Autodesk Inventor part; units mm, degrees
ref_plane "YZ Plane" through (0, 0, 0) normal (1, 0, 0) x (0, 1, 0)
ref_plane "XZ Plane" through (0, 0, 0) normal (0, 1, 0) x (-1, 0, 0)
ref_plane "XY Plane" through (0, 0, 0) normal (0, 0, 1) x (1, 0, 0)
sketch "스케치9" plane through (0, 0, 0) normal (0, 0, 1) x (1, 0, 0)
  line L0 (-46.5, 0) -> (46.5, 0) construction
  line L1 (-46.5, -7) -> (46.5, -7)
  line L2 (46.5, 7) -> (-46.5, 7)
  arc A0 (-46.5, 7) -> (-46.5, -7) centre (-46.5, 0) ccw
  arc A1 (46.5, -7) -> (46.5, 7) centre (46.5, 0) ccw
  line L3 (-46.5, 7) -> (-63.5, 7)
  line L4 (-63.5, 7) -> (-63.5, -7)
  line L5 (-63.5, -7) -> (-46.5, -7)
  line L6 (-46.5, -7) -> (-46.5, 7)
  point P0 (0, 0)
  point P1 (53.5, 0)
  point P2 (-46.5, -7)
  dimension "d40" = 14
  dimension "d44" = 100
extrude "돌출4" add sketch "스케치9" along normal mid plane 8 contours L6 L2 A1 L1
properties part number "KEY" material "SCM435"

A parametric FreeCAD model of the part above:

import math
import FreeCAD as App
import Part
import Sketcher
from FreeCAD import Vector
Q = App.Units.Quantity

doc = App.newDocument("Part")
params = doc.addObject("Spreadsheet::Sheet", "Params")
for row, (alias, value) in enumerate([
    ("sketch1_radius", "7 mm"),
    ("sketch1_width", "93 mm"),
    ("pad1_length", "8 mm"),
], start=1):
    params.set(f"A{row}", alias)
    params.set(f"B{row}", "=" + value)
    params.setAlias(f"B{row}", alias)

body = doc.addObject("PartDesign::Body", "Body")

# Sketch on XY plane
sketch1 = body.newObject("Sketcher::SketchObject", "Sketch")
sketch1.AttachmentSupport = (doc.getObject("XY_Plane"), [""])
sketch1.MapMode = "FlatFace"
sketch1.addGeometry(Part.LineSegment(Vector(-46.5, 7, 0), Vector(-46.5, -7, 0)), False)
sketch1.addGeometry(Part.LineSegment(Vector(-46.5, -7, 0), Vector(46.5, -7, 0)), False)
sketch1.addGeometry(Part.ArcOfCircle(Part.Circle(Vector(46.5, 0, 0), Vector(0, 0, 1), 7), math.radians(-90), math.radians(90)), False)
sketch1.addGeometry(Part.LineSegment(Vector(46.5, 7, 0), Vector(-46.5, 7, 0)), False)
sketch1.addConstraint(Sketcher.Constraint("Coincident", 0, 2, 1, 1))
sketch1.addConstraint(Sketcher.Constraint("Tangent", 1, 2, 2, 1))
sketch1.addConstraint(Sketcher.Constraint("Tangent", 2, 2, 3, 1))
sketch1.addConstraint(Sketcher.Constraint("Coincident", 3, 2, 0, 1))
sketch1.addConstraint(Sketcher.Constraint("Vertical", 0))
sketch1.addConstraint(Sketcher.Constraint("Horizontal", 1))
sketch1.addConstraint(Sketcher.Constraint("Horizontal", 3))
sketch1.addConstraint(Sketcher.Constraint("Symmetric", 0, 2, 2, 2, -1, 1))
sketch1.addConstraint(Sketcher.Constraint("Radius", 2, Q("7 mm")))
sketch1.addConstraint(Sketcher.Constraint("DistanceX", 1, 1, 1, 2, Q("93 mm")))
sketch1.setExpression("Constraints[8]", "Params.sketch1_radius")
sketch1.setExpression("Constraints[9]", "Params.sketch1_width")
pad1 = body.newObject("PartDesign::Pad", "Pad")
pad1.Profile = sketch1
pad1.setExpression("Length", "Params.pad1_length")
pad1.Midplane = True

doc.recompute()
